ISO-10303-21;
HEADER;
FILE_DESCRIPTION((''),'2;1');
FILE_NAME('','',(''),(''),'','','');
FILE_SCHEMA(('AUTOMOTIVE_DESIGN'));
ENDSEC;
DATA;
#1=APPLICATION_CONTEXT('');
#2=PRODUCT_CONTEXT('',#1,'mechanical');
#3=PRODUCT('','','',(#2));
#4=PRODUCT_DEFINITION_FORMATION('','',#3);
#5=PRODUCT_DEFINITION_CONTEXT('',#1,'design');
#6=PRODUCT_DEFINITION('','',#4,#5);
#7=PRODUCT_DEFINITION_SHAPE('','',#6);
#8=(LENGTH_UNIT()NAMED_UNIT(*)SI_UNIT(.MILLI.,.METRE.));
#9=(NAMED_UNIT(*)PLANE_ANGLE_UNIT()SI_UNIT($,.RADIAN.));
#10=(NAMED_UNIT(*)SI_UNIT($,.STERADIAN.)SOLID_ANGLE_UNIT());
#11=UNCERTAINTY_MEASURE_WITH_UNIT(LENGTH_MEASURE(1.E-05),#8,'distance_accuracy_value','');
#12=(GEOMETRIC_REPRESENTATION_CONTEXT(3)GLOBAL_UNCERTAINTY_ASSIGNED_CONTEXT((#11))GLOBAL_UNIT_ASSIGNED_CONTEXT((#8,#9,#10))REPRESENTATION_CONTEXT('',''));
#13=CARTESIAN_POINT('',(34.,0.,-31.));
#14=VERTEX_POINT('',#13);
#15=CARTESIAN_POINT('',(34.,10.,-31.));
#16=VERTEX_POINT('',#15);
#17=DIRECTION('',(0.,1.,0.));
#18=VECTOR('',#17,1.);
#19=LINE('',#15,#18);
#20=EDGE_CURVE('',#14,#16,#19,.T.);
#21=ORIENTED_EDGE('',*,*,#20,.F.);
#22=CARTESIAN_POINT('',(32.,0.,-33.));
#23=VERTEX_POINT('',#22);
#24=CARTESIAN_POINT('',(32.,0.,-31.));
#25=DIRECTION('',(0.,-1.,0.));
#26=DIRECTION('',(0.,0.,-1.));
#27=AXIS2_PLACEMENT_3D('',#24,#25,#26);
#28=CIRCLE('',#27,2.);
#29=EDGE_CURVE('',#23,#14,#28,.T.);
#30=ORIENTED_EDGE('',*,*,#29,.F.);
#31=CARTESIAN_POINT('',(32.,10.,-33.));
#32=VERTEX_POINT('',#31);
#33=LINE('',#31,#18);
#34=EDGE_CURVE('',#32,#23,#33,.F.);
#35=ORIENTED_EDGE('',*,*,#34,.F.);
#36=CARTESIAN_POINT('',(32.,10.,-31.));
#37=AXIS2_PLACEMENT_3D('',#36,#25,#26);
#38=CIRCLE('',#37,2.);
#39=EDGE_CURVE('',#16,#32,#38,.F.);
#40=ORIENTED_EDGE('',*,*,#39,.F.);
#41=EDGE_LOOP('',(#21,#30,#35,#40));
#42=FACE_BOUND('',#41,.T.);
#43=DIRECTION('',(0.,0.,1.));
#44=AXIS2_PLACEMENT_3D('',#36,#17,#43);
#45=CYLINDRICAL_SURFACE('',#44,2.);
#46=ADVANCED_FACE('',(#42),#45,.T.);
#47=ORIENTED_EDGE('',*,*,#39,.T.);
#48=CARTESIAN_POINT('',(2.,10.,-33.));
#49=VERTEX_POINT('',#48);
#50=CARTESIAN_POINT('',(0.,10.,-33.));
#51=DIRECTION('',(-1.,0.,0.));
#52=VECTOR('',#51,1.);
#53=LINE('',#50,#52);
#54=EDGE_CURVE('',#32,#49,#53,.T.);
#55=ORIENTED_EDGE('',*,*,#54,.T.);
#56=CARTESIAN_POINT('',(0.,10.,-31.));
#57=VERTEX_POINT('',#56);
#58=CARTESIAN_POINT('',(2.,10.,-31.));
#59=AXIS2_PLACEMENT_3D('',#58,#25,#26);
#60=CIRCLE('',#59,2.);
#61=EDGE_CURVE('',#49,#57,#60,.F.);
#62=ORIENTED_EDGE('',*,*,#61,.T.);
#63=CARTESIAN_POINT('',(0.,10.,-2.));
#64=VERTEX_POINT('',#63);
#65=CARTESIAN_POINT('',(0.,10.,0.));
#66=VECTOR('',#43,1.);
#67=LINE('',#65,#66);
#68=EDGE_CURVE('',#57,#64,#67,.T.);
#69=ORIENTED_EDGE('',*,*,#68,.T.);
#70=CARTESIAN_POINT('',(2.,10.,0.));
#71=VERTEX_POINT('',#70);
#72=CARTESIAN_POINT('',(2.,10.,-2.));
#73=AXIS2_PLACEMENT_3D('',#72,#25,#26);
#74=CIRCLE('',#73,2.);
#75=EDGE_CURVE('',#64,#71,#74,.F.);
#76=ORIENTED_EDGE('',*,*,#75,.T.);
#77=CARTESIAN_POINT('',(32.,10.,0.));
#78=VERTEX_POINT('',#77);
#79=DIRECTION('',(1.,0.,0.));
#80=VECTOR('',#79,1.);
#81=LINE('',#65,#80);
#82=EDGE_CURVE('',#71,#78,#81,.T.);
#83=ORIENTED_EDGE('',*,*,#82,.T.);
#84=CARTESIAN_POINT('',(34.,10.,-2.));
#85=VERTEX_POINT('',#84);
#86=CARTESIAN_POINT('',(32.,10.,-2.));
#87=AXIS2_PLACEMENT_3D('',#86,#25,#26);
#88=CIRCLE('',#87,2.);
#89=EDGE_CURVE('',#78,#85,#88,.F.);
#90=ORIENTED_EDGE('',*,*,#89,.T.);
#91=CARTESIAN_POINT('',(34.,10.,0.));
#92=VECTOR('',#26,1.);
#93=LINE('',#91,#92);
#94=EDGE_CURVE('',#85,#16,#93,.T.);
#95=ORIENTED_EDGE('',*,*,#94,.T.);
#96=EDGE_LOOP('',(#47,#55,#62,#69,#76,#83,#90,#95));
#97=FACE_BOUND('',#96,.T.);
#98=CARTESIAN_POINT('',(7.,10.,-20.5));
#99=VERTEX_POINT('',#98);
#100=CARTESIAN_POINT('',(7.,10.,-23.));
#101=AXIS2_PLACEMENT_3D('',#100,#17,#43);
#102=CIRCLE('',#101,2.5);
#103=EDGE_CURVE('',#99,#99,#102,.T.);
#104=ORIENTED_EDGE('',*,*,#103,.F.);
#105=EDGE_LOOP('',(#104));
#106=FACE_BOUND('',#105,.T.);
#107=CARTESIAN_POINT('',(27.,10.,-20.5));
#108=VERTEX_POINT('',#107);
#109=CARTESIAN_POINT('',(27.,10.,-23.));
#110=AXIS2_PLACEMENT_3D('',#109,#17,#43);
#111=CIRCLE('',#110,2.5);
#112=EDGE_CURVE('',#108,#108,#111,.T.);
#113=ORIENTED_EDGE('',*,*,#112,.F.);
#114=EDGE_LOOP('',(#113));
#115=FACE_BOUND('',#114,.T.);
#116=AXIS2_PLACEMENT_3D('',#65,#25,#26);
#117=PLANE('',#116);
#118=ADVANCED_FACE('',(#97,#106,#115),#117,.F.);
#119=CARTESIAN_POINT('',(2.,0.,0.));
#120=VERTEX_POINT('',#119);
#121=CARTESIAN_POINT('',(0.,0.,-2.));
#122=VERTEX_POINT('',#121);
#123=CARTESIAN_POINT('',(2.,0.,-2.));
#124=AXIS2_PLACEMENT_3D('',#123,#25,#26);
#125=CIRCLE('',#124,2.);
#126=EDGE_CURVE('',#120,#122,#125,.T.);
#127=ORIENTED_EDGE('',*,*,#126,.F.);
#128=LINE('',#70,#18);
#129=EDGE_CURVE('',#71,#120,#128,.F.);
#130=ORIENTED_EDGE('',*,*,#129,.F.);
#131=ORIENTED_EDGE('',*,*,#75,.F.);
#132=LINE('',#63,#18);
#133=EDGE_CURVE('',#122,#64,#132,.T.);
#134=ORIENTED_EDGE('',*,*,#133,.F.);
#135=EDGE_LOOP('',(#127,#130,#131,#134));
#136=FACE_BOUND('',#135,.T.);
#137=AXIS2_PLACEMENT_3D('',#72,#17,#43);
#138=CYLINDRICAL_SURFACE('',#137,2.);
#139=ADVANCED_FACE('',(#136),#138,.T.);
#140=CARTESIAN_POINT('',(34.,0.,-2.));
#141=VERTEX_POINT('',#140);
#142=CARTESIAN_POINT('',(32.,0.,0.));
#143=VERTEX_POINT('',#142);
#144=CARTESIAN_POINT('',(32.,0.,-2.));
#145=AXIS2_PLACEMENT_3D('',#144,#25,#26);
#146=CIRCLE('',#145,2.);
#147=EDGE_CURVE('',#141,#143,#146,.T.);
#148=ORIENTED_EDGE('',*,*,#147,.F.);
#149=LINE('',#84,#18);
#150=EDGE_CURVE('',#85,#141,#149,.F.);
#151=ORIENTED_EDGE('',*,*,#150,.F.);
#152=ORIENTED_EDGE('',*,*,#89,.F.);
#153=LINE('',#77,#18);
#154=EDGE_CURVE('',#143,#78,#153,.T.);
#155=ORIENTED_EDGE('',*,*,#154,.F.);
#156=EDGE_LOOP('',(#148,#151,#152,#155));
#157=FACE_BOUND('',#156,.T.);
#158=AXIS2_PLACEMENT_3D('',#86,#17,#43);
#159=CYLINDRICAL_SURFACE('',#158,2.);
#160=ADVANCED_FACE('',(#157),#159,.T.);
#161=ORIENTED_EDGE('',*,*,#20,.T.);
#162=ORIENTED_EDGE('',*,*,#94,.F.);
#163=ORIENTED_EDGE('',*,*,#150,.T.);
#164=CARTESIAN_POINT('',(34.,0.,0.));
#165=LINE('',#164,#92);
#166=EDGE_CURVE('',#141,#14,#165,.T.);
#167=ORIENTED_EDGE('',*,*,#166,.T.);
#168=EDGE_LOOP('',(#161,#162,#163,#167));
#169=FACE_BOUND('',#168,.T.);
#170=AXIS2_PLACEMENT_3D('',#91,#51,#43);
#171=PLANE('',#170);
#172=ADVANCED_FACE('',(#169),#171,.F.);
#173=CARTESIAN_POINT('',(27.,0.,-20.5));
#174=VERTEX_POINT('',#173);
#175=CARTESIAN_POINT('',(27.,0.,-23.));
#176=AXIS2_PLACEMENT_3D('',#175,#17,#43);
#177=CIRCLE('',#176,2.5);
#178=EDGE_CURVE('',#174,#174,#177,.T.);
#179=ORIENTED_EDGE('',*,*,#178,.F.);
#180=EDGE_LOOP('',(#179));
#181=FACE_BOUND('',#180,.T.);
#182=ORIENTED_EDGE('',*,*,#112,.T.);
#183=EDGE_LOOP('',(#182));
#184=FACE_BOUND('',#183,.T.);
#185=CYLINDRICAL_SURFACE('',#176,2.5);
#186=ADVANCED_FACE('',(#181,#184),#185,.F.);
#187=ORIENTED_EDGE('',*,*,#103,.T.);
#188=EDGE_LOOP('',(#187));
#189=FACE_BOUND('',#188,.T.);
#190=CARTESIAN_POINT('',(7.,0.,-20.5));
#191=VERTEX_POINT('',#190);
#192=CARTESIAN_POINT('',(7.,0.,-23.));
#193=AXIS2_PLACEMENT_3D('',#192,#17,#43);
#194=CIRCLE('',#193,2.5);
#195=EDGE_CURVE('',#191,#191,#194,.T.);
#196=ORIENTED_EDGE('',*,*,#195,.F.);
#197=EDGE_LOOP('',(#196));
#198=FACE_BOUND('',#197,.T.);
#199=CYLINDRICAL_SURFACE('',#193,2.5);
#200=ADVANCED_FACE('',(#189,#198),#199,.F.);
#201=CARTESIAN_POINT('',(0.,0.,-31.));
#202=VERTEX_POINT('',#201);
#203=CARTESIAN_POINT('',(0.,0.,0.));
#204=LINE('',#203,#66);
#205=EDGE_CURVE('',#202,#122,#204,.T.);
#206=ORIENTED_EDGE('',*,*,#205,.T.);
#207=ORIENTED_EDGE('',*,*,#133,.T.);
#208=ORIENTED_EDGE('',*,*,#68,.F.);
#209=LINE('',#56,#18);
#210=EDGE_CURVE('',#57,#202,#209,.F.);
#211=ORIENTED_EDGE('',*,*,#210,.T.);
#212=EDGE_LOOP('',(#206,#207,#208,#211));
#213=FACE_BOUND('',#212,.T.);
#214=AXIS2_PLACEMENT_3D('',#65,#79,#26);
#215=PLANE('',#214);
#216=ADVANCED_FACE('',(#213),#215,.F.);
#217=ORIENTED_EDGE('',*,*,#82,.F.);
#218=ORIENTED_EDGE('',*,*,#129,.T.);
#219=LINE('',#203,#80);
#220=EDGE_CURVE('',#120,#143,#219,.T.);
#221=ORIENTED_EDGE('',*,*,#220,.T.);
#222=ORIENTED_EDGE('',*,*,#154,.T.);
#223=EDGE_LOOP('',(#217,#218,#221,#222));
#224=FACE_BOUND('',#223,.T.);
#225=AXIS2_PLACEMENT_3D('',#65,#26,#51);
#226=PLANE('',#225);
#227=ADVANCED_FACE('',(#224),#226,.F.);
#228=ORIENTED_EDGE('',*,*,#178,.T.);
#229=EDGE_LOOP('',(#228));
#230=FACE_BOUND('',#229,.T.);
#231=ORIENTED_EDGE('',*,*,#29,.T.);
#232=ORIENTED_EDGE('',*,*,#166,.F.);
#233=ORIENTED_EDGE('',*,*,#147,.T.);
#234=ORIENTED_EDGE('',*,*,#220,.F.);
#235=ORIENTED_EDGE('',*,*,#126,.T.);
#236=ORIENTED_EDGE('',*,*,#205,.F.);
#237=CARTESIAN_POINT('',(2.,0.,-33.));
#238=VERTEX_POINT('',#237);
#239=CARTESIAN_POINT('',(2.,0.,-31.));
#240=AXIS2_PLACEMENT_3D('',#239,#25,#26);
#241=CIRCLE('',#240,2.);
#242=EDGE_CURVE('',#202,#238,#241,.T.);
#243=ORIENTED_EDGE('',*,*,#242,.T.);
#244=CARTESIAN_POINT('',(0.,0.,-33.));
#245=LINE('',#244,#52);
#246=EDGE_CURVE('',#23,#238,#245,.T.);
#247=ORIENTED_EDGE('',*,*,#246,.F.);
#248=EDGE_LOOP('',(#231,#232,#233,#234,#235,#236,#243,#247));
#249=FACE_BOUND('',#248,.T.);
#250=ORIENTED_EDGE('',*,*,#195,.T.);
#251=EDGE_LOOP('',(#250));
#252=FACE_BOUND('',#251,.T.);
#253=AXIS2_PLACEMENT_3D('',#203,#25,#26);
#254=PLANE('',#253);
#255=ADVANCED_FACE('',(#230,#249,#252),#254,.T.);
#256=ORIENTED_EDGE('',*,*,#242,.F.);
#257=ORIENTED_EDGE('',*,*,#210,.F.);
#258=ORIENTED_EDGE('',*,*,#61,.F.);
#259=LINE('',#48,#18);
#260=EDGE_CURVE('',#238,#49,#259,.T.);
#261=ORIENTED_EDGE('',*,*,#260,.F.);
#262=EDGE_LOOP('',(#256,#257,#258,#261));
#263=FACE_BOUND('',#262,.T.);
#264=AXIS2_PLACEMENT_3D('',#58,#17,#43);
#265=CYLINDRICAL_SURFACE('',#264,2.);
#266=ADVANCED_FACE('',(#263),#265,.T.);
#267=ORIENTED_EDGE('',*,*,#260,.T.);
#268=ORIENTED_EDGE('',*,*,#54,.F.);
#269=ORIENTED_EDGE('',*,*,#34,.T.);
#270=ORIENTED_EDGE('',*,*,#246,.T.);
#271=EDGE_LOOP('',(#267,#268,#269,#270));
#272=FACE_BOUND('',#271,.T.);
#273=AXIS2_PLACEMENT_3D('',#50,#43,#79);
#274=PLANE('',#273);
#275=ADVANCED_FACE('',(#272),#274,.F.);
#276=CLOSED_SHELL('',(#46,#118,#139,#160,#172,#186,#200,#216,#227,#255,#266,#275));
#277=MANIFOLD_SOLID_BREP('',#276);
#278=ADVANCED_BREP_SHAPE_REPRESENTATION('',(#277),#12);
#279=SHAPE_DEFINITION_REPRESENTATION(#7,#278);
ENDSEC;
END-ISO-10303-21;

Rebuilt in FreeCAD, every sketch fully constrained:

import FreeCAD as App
import Part
import Sketcher
from FreeCAD import Vector
Q = App.Units.Quantity


def edges_at(feature, points):
    """Names of the edges that pass closest to the given points."""
    edges = feature.Shape.Edges
    near = lambda p: min(range(len(edges)), key=lambda i: edges[i].distToShape(Part.Vertex(*p))[0])
    return sorted({f"Edge{near(p) + 1}" for p in points})


def add_polygon(sketch, points):
    """Adds a closed chain of lines whose ends are joined by coincident constraints."""
    first, n = sketch.GeometryCount, len(points)
    for a, b in zip(points, points[1:] + points[:1]):
        sketch.addGeometry(Part.LineSegment(App.Vector(*a, 0), App.Vector(*b, 0)), False)
    for i in range(n):
        sketch.addConstraint(Sketcher.Constraint("Coincident", first + i, 2, first + (i + 1) % n, 1))

doc = App.newDocument("Part")
body = doc.addObject("PartDesign::Body", "Body")

# Sketch on XZ plane
sketch1 = body.newObject("Sketcher::SketchObject", "Sketch")
sketch1.AttachmentSupport = (doc.getObject("XZ_Plane"), [""])
sketch1.MapMode = "FlatFace"
add_polygon(sketch1, [(0, -33), (0, 0), (34, 0), (34, -33)])  # lines 0-3
sketch1.addConstraint([
    Sketcher.Constraint("Vertical", 0),
    Sketcher.Constraint("Horizontal", 1),
    Sketcher.Constraint("Vertical", 2),
    Sketcher.Constraint("Horizontal", 3),
    Sketcher.Constraint("Coincident", 0, 2, -1, 1),
    Sketcher.Constraint("DistanceX", 1, 1, 1, 2, Q("34 mm")),
    Sketcher.Constraint("DistanceY", 0, 1, 0, 2, Q("33 mm")),
])
pad1 = body.newObject("PartDesign::Pad", "Pad")
pad1.Profile = sketch1
pad1.Length = 10
pad1.Reversed = True
doc.recompute()

fillet = body.newObject("PartDesign::Fillet", "Fillet")
fillet.Base = (pad1, edges_at(pad1, [(34, 5, 0)]))
fillet.Radius = 2
doc.recompute()

fillet2 = body.newObject("PartDesign::Fillet", "Fillet001")
fillet2.Base = (fillet, edges_at(fillet, [(34, 5, -33)]))
fillet2.Radius = 2
doc.recompute()

fillet3 = body.newObject("PartDesign::Fillet", "Fillet002")
fillet3.Base = (fillet2, edges_at(fillet2, [(0, 5, -33)]))
fillet3.Radius = 2
doc.recompute()

fillet4 = body.newObject("PartDesign::Fillet", "Fillet003")
fillet4.Base = (fillet3, edges_at(fillet3, [(0, 5, 0)]))
fillet4.Radius = 2

# Sketch on XZ plane
sketch2 = body.newObject("Sketcher::SketchObject", "Sketch001")
sketch2.AttachmentSupport = (doc.getObject("XZ_Plane"), [""])
sketch2.MapMode = "FlatFace"
sketch2.AttachmentOffset = App.Placement(Vector(0, 0, -10), App.Rotation())
sketch2.addGeometry([
    Part.Circle(Vector(7, -23, 0), Vector(0, 0, 1), 2.5),
    Part.Circle(Vector(27, -23, 0), Vector(0, 0, 1), 2.5),
], False)
sketch2.addConstraint([
    Sketcher.Constraint("Equal", 0, 1),
    Sketcher.Constraint("Horizontal", 0, 3, 1, 3),
    Sketcher.Constraint("Diameter", 0, Q("5 mm")),
    Sketcher.Constraint("DistanceX", -1, 1, 0, 3, Q("7 mm")),
    Sketcher.Constraint("DistanceY", 0, 3, -1, 1, Q("23 mm")),
    Sketcher.Constraint("DistanceX", -1, 1, 1, 3, Q("27 mm")),
])
pocket1 = body.newObject("PartDesign::Pocket", "Pocket")
pocket1.Profile = sketch2
pocket1.Length = 10
pocket1.Reversed = True

doc.recompute()
